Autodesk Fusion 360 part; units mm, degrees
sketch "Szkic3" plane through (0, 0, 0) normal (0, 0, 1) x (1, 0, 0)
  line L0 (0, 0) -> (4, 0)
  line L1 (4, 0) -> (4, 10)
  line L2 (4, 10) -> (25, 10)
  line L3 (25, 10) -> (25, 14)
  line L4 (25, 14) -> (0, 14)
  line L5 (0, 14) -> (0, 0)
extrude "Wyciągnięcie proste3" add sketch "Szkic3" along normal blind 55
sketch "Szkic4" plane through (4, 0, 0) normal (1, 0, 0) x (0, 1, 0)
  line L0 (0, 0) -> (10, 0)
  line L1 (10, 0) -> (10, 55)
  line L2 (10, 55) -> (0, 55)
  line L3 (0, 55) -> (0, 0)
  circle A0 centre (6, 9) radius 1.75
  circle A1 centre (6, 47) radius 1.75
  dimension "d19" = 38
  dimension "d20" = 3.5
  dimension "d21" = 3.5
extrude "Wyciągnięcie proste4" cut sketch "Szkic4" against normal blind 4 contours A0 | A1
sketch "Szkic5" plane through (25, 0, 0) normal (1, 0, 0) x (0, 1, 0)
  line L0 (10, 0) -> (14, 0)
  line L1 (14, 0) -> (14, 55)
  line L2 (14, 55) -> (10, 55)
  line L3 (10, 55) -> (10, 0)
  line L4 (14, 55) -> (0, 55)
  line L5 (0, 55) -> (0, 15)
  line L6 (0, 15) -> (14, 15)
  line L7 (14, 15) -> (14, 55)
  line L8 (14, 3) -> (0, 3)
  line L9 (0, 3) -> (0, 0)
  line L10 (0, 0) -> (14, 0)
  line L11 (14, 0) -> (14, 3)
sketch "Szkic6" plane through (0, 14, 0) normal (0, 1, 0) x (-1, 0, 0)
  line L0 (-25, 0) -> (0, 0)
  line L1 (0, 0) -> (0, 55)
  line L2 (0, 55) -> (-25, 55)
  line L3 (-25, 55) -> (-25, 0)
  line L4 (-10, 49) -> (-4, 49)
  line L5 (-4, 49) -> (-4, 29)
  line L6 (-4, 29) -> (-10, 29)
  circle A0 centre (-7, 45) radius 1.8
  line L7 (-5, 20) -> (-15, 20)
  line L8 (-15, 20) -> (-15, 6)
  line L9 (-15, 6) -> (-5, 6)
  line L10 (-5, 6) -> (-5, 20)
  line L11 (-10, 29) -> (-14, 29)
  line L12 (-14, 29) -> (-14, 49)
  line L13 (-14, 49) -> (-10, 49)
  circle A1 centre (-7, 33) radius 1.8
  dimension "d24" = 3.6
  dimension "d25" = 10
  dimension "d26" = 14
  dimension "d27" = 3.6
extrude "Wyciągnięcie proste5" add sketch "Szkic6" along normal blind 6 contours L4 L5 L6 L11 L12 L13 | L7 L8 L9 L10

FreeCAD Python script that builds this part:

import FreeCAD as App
import Part
import Sketcher


def add_polygon(sketch, points):
    """Adds a closed chain of lines whose ends are joined by coincident constraints."""
    first, n = sketch.GeometryCount, len(points)
    for a, b in zip(points, points[1:] + points[:1]):
        sketch.addGeometry(Part.LineSegment(App.Vector(*a, 0), App.Vector(*b, 0)), False)
    for i in range(n):
        sketch.addConstraint(Sketcher.Constraint("Coincident", first + i, 2, first + (i + 1) % n, 1))

doc = App.newDocument("Part")
params = doc.addObject("Spreadsheet::Sheet", "Params")
for row, (alias, value) in enumerate([
    ("sketch1_width", "4 mm"),
    ("sketch1_width2", "21 mm"),
    ("sketch1_height", "14 mm"),
    ("pad1_length", "55 mm"),
    ("sketch2_diameter", "3.5 mm"),
    ("pocket1_length", "4 mm"),
    ("sketch3_diameter", "3.6 mm"),
    ("sketch3_width", "10 mm"),
    ("sketch3_height", "14 mm"),
    ("sketch3_height2", "20 mm"),
    ("pad2_length", "6 mm"),
], start=1):
    params.set(f"A{row}", alias)
    params.set(f"B{row}", "=" + value)
    params.setAlias(f"B{row}", alias)

body = doc.addObject("PartDesign::Body", "Body")

sketch1 = doc.addObject("Sketcher::SketchObject", "Sketch")
body.addObject(sketch1)
sketch1.AttachmentSupport = (doc.XY_Plane, [""])
sketch1.MapMode = "FlatFace"
add_polygon(sketch1, [(0, 14), (0, 0), (4, 0), (4, 10), (25, 10), (25, 14)])
sketch1.addConstraint([
    Sketcher.Constraint("Vertical", 0),
    Sketcher.Constraint("Horizontal", 1),
    Sketcher.Constraint("Vertical", 2),
    Sketcher.Constraint("Horizontal", 3),
    Sketcher.Constraint("Vertical", 4),
    Sketcher.Constraint("Horizontal", 5),
    Sketcher.Constraint("Coincident", 0, 2, -1, 1),
    Sketcher.Constraint("Equal", 1, 4),
    Sketcher.Constraint("DistanceX", 1, 1, 1, 2, 4.0),
    Sketcher.Constraint("DistanceX", 3, 1, 3, 2, 21.0),
    Sketcher.Constraint("DistanceY", 0, 2, 0, 1, 14.0),
])
sketch1.setExpression("Constraints[14]", "Params.sketch1_width")
sketch1.setExpression("Constraints[15]", "Params.sketch1_width2")
sketch1.setExpression("Constraints[16]", "Params.sketch1_height")
pad1 = doc.addObject("PartDesign::Pad", "Pad")
body.addObject(pad1)
pad1.Profile = sketch1
pad1.setExpression("Length", "Params.pad1_length")

sketch2 = doc.addObject("Sketcher::SketchObject", "Sketch001")
body.addObject(sketch2)
sketch2.AttachmentSupport = (doc.YZ_Plane, [""])
sketch2.MapMode = "FlatFace"
sketch2.AttachmentOffset = App.Placement(App.Vector(0, 0, 4), App.Rotation())
sketch2.addGeometry([
    Part.Circle(App.Vector(6, 9, 0), App.Vector(0, 0, 1), 1.8),
    Part.Circle(App.Vector(6, 47, 0), App.Vector(0, 0, 1), 1.8),
], False)
sketch2.addConstraint([
    Sketcher.Constraint("Equal", 0, 1),
    Sketcher.Constraint("Vertical", 0, 3, 1, 3),
    Sketcher.Constraint("Diameter", 0, 3.5),
    Sketcher.Constraint("DistanceY", 0, 3, 1, 3, 38.0),
    Sketcher.Constraint("DistanceX", -1, 1, 0, 3, 6.0),
    Sketcher.Constraint("DistanceY", -1, 1, 0, 3, 9.0),
])
sketch2.setExpression("Constraints[2]", "Params.sketch2_diameter")
pocket1 = doc.addObject("PartDesign::Pocket", "Pocket")
body.addObject(pocket1)
pocket1.Profile = sketch2
pocket1.setExpression("Length", "Params.pocket1_length")

sketch3 = doc.addObject("Sketcher::SketchObject", "Sketch002")
body.addObject(sketch3)
sketch3.AttachmentSupport = (doc.XZ_Plane, [""])
sketch3.MapMode = "FlatFace"
sketch3.AttachmentOffset = App.Placement(App.Vector(0, 0, -14), App.Rotation())
add_polygon(sketch3, [(4, 49), (14, 49), (14, 29), (4, 29)])
sketch3.addGeometry(Part.Circle(App.Vector(7, 33, 0), App.Vector(0, 0, 1), 1.8), False)
sketch3.addGeometry(Part.Circle(App.Vector(7, 45, 0), App.Vector(0, 0, 1), 1.8), False)
add_polygon(sketch3, [(5, 6), (5, 20), (15, 20), (15, 6)])
sketch3.addConstraint([
    Sketcher.Constraint("Horizontal", 0),
    Sketcher.Constraint("Vertical", 1),
    Sketcher.Constraint("Horizontal", 2),
    Sketcher.Constraint("Vertical", 3),
    Sketcher.Constraint("Vertical", 6),
    Sketcher.Constraint("Horizontal", 7),
    Sketcher.Constraint("Vertical", 8),
    Sketcher.Constraint("Horizontal", 9),
    Sketcher.Constraint("Equal", 4, 5),
    Sketcher.Constraint("Vertical", 4, 3, 5, 3),
    Sketcher.Constraint("Equal", 2, 7),
    Sketcher.Constraint("Diameter", 4, 3.6),
    Sketcher.Constraint("DistanceX", 0, 1, 0, 2, 10.0),
    Sketcher.Constraint("DistanceY", 6, 1, 6, 2, 14.0),
    Sketcher.Constraint("DistanceX", -1, 1, 0, 2, 14.0),
    Sketcher.Constraint("DistanceY", 1, 2, 1, 1, 20.0),
    Sketcher.Constraint("DistanceX", -1, 1, 4, 3, 7.0),
    Sketcher.Constraint("DistanceY", -1, 1, 4, 3, 33.0),
    Sketcher.Constraint("DistanceY", -1, 1, 5, 3, 45.0),
    Sketcher.Constraint("DistanceY", -1, 1, 0, 2, 49.0),
    Sketcher.Constraint("DistanceX", -1, 1, 6, 2, 5.0),
    Sketcher.Constraint("DistanceY", -1, 1, 6, 2, 20.0),
])
sketch3.setExpression("Constraints[19]", "Params.sketch3_diameter")
sketch3.setExpression("Constraints[20]", "Params.sketch3_width")
sketch3.setExpression("Constraints[21]", "Params.sketch3_height")
sketch3.setExpression("Constraints[23]", "Params.sketch3_height2")
pad2 = doc.addObject("PartDesign::Pad", "Pad001")
body.addObject(pad2)
pad2.Profile = sketch3
pad2.setExpression("Length", "Params.pad2_length")
pad2.Reversed = True

doc.recompute()
